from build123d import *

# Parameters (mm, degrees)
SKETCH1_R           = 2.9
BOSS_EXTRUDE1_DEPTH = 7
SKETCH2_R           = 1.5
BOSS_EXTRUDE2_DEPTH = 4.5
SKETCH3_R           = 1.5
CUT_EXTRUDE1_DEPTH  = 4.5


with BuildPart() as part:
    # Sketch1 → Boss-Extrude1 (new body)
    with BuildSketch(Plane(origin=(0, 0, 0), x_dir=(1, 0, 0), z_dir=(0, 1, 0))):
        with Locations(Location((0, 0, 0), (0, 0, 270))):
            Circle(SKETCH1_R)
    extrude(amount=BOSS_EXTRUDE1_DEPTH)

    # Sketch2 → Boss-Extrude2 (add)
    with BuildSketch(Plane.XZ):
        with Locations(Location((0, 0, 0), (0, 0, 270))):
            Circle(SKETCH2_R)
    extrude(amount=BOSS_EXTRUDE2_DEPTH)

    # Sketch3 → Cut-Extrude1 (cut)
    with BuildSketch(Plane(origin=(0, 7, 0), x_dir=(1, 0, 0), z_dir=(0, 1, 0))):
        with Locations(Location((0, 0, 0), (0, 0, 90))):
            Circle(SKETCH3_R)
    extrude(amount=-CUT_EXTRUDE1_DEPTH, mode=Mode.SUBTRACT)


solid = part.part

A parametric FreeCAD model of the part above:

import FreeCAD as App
import Part
import Sketcher

V = App.Vector
Q = App.Units.Quantity

doc = App.newDocument("Part")
body = doc.addObject("PartDesign::Body", "Body")

# Sketch on XZ plane
sketch1 = body.newObject("Sketcher::SketchObject", "Sketch")
sketch1.AttachmentSupport = (doc.getObject("XZ_Plane"), [""])
sketch1.MapMode = "FlatFace"
sketch1.addGeometry(Part.Circle(V(0, 0, 0), V(0, 0, 1), 2.9), False)
sketch1.addConstraint([
    Sketcher.Constraint("Coincident", 0, 3, -1, 1),
    Sketcher.Constraint("Diameter", 0, Q("5.8 mm")),
])
pad1 = body.newObject("PartDesign::Pad", "Pad")
pad1.Profile = sketch1
pad1.Length = 7
pad1.Reversed = True

# Sketch on XZ plane
sketch2 = body.newObject("Sketcher::SketchObject", "Sketch001")
sketch2.AttachmentSupport = (doc.getObject("XZ_Plane"), [""])
sketch2.MapMode = "FlatFace"
sketch2.addGeometry(Part.Circle(V(0, 0, 0), V(0, 0, 1), 1.5), False)
sketch2.addConstraint([
    Sketcher.Constraint("Coincident", 0, 3, -1, 1),
    Sketcher.Constraint("Diameter", 0, Q("3 mm")),
])
pad2 = body.newObject("PartDesign::Pad", "Pad001")
pad2.Profile = sketch2
pad2.Length = 4.5

# Sketch on XZ plane
sketch3 = body.newObject("Sketcher::SketchObject", "Sketch002")
sketch3.AttachmentSupport = (doc.getObject("XZ_Plane"), [""])
sketch3.MapMode = "FlatFace"
sketch3.AttachmentOffset = App.Placement(V(0, 0, -7), App.Rotation())
sketch3.addGeometry(Part.Circle(V(0, 0, 0), V(0, 0, 1), 1.5), False)
sketch3.addConstraint([
    Sketcher.Constraint("Coincident", 0, 3, -1, 1),
    Sketcher.Constraint("Diameter", 0, Q("3 mm")),
])
pocket1 = body.newObject("PartDesign::Pocket", "Pocket")
pocket1.Profile = sketch3
pocket1.Length = 4.5
pocket1.Reversed = True

doc.recompute()
